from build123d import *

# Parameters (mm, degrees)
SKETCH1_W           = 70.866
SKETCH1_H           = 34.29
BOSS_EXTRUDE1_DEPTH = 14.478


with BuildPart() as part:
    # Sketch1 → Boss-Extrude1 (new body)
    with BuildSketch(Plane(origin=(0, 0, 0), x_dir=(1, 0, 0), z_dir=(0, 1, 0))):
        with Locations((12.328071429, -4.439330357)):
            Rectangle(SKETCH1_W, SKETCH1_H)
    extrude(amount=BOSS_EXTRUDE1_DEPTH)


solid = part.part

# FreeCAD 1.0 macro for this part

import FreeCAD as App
import Part
import Sketcher
Q = App.Units.Quantity

doc = App.newDocument("Part")
body = doc.addObject("PartDesign::Body", "Body")

# Sketch on XZ plane
sketch1 = body.newObject("Sketcher::SketchObject", "Sketch")
sketch1.AttachmentSupport = (doc.getObject("XZ_Plane"), [""])
sketch1.MapMode = "FlatFace"
sketch1.addGeometry([
    Part.LineSegment(App.Vector(-23.104929, -12.70567, 0), App.Vector(-23.104929, 21.58433, 0)),
    Part.LineSegment(App.Vector(-23.104929, 21.58433, 0), App.Vector(47.761071, 21.58433, 0)),
    Part.LineSegment(App.Vector(47.761071, 21.58433, 0), App.Vector(47.761071, -12.70567, 0)),
    Part.LineSegment(App.Vector(47.761071, -12.70567, 0), App.Vector(-23.104929, -12.70567, 0)),
], False)
sketch1.addConstraint([
    Sketcher.Constraint("Coincident", 0, 2, 1, 1),
    Sketcher.Constraint("Coincident", 1, 2, 2, 1),
    Sketcher.Constraint("Coincident", 2, 2, 3, 1),
    Sketcher.Constraint("Coincident", 3, 2, 0, 1),
    Sketcher.Constraint("Vertical", 0),
    Sketcher.Constraint("Horizontal", 1),
    Sketcher.Constraint("Vertical", 2),
    Sketcher.Constraint("Horizontal", 3),
    Sketcher.Constraint("DistanceX", 1, 1, 1, 2, Q("2.79 in")),
    Sketcher.Constraint("DistanceY", 0, 1, 0, 2, Q("1.35 in")),
    Sketcher.Constraint("DistanceX", 0, 2, -1, 1, 23.104929),
    Sketcher.Constraint("DistanceY", -1, 1, 0, 2, 21.58433),
])
pad1 = body.newObject("PartDesign::Pad", "Pad")
pad1.Profile = sketch1
pad1.Length = Q("0.57 in")
pad1.Reversed = True

doc.recompute()
